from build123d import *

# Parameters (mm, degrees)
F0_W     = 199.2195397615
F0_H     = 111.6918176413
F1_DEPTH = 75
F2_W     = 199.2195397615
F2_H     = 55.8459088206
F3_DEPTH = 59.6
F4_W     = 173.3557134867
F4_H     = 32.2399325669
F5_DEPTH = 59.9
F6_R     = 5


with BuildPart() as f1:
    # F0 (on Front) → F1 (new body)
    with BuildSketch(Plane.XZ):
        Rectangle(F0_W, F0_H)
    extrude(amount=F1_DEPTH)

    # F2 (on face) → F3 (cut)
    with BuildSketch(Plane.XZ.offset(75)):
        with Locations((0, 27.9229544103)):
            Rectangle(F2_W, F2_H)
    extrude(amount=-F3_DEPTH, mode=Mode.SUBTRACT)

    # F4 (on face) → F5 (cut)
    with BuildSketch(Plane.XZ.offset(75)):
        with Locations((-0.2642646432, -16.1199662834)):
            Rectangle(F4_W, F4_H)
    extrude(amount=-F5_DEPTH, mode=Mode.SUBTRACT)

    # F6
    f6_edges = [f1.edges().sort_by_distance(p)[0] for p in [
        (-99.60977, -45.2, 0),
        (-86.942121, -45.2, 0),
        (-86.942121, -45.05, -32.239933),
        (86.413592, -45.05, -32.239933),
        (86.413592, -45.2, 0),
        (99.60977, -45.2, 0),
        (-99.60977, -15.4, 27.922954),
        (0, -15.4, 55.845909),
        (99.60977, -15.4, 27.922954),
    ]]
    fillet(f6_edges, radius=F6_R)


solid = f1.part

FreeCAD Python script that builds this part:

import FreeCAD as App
import Part
import Sketcher

V = App.Vector
Q = App.Units.Quantity


def edges_at(feature, points):
    """Names of the edges that pass closest to the given points."""
    edges = feature.Shape.Edges
    near = lambda p: min(range(len(edges)), key=lambda i: edges[i].distToShape(Part.Vertex(*p))[0])
    return sorted({f"Edge{near(p) + 1}" for p in points})


def add_polygon(sketch, points):
    """Adds a closed chain of lines whose ends are joined by coincident constraints."""
    first, n = sketch.GeometryCount, len(points)
    for a, b in zip(points, points[1:] + points[:1]):
        sketch.addGeometry(Part.LineSegment(App.Vector(*a, 0), App.Vector(*b, 0)), False)
    for i in range(n):
        sketch.addConstraint(Sketcher.Constraint("Coincident", first + i, 2, first + (i + 1) % n, 1))

doc = App.newDocument("Part")
body = doc.addObject("PartDesign::Body", "Body")

sketch1 = doc.addObject("Sketcher::SketchObject", "Sketch")
body.addObject(sketch1)
sketch1.AttachmentSupport = (doc.XZ_Plane, [""])
sketch1.MapMode = "FlatFace"
add_polygon(sketch1, [(-99.60977, 55.845909), (-99.60977, -55.845909), (99.60977, -55.845909), (99.60977, 55.845909)])
sketch1.addConstraint([
    Sketcher.Constraint("Vertical", 0),
    Sketcher.Constraint("Horizontal", 1),
    Sketcher.Constraint("Vertical", 2),
    Sketcher.Constraint("Horizontal", 3),
    Sketcher.Constraint("Symmetric", 0, 2, 2, 2, -1, 1),
    Sketcher.Constraint("DistanceX", 1, 1, 1, 2, Q("199.21954 mm")),
    Sketcher.Constraint("DistanceY", 0, 2, 0, 1, Q("111.691818 mm")),
])
pad1 = doc.addObject("PartDesign::Pad", "Pad")
body.addObject(pad1)
pad1.Profile = sketch1
pad1.Length = 75

sketch2 = doc.addObject("Sketcher::SketchObject", "Sketch001")
body.addObject(sketch2)
sketch2.AttachmentSupport = (doc.XZ_Plane, [""])
sketch2.MapMode = "FlatFace"
sketch2.AttachmentOffset = App.Placement(V(0, 0, 75), App.Rotation())
add_polygon(sketch2, [(-99.60977, 55.845909), (-99.60977, 0), (99.60977, 0), (99.60977, 55.845909)])
sketch2.addConstraint([
    Sketcher.Constraint("Vertical", 0),
    Sketcher.Constraint("Horizontal", 1),
    Sketcher.Constraint("Vertical", 2),
    Sketcher.Constraint("Horizontal", 3),
    Sketcher.Constraint("Symmetric", 0, 2, 1, 2, -1, 1),
    Sketcher.Constraint("DistanceX", 1, 1, 1, 2, Q("199.21954 mm")),
    Sketcher.Constraint("DistanceY", 0, 2, 0, 1, Q("55.845909 mm")),
])
pocket1 = doc.addObject("PartDesign::Pocket", "Pocket")
body.addObject(pocket1)
pocket1.Profile = sketch2
pocket1.Length = 59.6

sketch3 = doc.addObject("Sketcher::SketchObject", "Sketch002")
body.addObject(sketch3)
sketch3.AttachmentSupport = (doc.XZ_Plane, [""])
sketch3.MapMode = "FlatFace"
sketch3.AttachmentOffset = App.Placement(V(0, 0, 75), App.Rotation())
add_polygon(sketch3, [(-86.942121, 0), (-86.942121, -32.239933), (86.413592, -32.239933), (86.413592, 0)])
sketch3.addConstraint([
    Sketcher.Constraint("Vertical", 0),
    Sketcher.Constraint("Horizontal", 1),
    Sketcher.Constraint("Vertical", 2),
    Sketcher.Constraint("Horizontal", 3),
    Sketcher.Constraint("PointOnObject", 2, 2, -1),
    Sketcher.Constraint("DistanceX", 1, 1, 1, 2, Q("173.355713 mm")),
    Sketcher.Constraint("DistanceY", 0, 2, 0, 1, Q("32.239933 mm")),
    Sketcher.Constraint("DistanceX", 0, 2, -1, 1, Q("86.942121 mm")),
])
pocket2 = doc.addObject("PartDesign::Pocket", "Pocket001")
body.addObject(pocket2)
pocket2.Profile = sketch3
pocket2.Length = 59.9
doc.recompute()

fillet = doc.addObject("PartDesign::Fillet", "Fillet")
body.addObject(fillet)
fillet.Base = (pocket2, edges_at(pocket2, [
    (-99.61, -45.2, 0),
    (-86.942, -45.2, 0),
    (-86.942, -45.05, -32.24),
    (86.414, -45.05, -32.24),
    (86.414, -45.2, 0),
    (99.61, -45.2, 0),
    (-99.61, -15.4, 27.923),
    (0, -15.4, 55.846),
    (99.61, -15.4, 27.923),
]))
fillet.Radius = 5

doc.recompute()
